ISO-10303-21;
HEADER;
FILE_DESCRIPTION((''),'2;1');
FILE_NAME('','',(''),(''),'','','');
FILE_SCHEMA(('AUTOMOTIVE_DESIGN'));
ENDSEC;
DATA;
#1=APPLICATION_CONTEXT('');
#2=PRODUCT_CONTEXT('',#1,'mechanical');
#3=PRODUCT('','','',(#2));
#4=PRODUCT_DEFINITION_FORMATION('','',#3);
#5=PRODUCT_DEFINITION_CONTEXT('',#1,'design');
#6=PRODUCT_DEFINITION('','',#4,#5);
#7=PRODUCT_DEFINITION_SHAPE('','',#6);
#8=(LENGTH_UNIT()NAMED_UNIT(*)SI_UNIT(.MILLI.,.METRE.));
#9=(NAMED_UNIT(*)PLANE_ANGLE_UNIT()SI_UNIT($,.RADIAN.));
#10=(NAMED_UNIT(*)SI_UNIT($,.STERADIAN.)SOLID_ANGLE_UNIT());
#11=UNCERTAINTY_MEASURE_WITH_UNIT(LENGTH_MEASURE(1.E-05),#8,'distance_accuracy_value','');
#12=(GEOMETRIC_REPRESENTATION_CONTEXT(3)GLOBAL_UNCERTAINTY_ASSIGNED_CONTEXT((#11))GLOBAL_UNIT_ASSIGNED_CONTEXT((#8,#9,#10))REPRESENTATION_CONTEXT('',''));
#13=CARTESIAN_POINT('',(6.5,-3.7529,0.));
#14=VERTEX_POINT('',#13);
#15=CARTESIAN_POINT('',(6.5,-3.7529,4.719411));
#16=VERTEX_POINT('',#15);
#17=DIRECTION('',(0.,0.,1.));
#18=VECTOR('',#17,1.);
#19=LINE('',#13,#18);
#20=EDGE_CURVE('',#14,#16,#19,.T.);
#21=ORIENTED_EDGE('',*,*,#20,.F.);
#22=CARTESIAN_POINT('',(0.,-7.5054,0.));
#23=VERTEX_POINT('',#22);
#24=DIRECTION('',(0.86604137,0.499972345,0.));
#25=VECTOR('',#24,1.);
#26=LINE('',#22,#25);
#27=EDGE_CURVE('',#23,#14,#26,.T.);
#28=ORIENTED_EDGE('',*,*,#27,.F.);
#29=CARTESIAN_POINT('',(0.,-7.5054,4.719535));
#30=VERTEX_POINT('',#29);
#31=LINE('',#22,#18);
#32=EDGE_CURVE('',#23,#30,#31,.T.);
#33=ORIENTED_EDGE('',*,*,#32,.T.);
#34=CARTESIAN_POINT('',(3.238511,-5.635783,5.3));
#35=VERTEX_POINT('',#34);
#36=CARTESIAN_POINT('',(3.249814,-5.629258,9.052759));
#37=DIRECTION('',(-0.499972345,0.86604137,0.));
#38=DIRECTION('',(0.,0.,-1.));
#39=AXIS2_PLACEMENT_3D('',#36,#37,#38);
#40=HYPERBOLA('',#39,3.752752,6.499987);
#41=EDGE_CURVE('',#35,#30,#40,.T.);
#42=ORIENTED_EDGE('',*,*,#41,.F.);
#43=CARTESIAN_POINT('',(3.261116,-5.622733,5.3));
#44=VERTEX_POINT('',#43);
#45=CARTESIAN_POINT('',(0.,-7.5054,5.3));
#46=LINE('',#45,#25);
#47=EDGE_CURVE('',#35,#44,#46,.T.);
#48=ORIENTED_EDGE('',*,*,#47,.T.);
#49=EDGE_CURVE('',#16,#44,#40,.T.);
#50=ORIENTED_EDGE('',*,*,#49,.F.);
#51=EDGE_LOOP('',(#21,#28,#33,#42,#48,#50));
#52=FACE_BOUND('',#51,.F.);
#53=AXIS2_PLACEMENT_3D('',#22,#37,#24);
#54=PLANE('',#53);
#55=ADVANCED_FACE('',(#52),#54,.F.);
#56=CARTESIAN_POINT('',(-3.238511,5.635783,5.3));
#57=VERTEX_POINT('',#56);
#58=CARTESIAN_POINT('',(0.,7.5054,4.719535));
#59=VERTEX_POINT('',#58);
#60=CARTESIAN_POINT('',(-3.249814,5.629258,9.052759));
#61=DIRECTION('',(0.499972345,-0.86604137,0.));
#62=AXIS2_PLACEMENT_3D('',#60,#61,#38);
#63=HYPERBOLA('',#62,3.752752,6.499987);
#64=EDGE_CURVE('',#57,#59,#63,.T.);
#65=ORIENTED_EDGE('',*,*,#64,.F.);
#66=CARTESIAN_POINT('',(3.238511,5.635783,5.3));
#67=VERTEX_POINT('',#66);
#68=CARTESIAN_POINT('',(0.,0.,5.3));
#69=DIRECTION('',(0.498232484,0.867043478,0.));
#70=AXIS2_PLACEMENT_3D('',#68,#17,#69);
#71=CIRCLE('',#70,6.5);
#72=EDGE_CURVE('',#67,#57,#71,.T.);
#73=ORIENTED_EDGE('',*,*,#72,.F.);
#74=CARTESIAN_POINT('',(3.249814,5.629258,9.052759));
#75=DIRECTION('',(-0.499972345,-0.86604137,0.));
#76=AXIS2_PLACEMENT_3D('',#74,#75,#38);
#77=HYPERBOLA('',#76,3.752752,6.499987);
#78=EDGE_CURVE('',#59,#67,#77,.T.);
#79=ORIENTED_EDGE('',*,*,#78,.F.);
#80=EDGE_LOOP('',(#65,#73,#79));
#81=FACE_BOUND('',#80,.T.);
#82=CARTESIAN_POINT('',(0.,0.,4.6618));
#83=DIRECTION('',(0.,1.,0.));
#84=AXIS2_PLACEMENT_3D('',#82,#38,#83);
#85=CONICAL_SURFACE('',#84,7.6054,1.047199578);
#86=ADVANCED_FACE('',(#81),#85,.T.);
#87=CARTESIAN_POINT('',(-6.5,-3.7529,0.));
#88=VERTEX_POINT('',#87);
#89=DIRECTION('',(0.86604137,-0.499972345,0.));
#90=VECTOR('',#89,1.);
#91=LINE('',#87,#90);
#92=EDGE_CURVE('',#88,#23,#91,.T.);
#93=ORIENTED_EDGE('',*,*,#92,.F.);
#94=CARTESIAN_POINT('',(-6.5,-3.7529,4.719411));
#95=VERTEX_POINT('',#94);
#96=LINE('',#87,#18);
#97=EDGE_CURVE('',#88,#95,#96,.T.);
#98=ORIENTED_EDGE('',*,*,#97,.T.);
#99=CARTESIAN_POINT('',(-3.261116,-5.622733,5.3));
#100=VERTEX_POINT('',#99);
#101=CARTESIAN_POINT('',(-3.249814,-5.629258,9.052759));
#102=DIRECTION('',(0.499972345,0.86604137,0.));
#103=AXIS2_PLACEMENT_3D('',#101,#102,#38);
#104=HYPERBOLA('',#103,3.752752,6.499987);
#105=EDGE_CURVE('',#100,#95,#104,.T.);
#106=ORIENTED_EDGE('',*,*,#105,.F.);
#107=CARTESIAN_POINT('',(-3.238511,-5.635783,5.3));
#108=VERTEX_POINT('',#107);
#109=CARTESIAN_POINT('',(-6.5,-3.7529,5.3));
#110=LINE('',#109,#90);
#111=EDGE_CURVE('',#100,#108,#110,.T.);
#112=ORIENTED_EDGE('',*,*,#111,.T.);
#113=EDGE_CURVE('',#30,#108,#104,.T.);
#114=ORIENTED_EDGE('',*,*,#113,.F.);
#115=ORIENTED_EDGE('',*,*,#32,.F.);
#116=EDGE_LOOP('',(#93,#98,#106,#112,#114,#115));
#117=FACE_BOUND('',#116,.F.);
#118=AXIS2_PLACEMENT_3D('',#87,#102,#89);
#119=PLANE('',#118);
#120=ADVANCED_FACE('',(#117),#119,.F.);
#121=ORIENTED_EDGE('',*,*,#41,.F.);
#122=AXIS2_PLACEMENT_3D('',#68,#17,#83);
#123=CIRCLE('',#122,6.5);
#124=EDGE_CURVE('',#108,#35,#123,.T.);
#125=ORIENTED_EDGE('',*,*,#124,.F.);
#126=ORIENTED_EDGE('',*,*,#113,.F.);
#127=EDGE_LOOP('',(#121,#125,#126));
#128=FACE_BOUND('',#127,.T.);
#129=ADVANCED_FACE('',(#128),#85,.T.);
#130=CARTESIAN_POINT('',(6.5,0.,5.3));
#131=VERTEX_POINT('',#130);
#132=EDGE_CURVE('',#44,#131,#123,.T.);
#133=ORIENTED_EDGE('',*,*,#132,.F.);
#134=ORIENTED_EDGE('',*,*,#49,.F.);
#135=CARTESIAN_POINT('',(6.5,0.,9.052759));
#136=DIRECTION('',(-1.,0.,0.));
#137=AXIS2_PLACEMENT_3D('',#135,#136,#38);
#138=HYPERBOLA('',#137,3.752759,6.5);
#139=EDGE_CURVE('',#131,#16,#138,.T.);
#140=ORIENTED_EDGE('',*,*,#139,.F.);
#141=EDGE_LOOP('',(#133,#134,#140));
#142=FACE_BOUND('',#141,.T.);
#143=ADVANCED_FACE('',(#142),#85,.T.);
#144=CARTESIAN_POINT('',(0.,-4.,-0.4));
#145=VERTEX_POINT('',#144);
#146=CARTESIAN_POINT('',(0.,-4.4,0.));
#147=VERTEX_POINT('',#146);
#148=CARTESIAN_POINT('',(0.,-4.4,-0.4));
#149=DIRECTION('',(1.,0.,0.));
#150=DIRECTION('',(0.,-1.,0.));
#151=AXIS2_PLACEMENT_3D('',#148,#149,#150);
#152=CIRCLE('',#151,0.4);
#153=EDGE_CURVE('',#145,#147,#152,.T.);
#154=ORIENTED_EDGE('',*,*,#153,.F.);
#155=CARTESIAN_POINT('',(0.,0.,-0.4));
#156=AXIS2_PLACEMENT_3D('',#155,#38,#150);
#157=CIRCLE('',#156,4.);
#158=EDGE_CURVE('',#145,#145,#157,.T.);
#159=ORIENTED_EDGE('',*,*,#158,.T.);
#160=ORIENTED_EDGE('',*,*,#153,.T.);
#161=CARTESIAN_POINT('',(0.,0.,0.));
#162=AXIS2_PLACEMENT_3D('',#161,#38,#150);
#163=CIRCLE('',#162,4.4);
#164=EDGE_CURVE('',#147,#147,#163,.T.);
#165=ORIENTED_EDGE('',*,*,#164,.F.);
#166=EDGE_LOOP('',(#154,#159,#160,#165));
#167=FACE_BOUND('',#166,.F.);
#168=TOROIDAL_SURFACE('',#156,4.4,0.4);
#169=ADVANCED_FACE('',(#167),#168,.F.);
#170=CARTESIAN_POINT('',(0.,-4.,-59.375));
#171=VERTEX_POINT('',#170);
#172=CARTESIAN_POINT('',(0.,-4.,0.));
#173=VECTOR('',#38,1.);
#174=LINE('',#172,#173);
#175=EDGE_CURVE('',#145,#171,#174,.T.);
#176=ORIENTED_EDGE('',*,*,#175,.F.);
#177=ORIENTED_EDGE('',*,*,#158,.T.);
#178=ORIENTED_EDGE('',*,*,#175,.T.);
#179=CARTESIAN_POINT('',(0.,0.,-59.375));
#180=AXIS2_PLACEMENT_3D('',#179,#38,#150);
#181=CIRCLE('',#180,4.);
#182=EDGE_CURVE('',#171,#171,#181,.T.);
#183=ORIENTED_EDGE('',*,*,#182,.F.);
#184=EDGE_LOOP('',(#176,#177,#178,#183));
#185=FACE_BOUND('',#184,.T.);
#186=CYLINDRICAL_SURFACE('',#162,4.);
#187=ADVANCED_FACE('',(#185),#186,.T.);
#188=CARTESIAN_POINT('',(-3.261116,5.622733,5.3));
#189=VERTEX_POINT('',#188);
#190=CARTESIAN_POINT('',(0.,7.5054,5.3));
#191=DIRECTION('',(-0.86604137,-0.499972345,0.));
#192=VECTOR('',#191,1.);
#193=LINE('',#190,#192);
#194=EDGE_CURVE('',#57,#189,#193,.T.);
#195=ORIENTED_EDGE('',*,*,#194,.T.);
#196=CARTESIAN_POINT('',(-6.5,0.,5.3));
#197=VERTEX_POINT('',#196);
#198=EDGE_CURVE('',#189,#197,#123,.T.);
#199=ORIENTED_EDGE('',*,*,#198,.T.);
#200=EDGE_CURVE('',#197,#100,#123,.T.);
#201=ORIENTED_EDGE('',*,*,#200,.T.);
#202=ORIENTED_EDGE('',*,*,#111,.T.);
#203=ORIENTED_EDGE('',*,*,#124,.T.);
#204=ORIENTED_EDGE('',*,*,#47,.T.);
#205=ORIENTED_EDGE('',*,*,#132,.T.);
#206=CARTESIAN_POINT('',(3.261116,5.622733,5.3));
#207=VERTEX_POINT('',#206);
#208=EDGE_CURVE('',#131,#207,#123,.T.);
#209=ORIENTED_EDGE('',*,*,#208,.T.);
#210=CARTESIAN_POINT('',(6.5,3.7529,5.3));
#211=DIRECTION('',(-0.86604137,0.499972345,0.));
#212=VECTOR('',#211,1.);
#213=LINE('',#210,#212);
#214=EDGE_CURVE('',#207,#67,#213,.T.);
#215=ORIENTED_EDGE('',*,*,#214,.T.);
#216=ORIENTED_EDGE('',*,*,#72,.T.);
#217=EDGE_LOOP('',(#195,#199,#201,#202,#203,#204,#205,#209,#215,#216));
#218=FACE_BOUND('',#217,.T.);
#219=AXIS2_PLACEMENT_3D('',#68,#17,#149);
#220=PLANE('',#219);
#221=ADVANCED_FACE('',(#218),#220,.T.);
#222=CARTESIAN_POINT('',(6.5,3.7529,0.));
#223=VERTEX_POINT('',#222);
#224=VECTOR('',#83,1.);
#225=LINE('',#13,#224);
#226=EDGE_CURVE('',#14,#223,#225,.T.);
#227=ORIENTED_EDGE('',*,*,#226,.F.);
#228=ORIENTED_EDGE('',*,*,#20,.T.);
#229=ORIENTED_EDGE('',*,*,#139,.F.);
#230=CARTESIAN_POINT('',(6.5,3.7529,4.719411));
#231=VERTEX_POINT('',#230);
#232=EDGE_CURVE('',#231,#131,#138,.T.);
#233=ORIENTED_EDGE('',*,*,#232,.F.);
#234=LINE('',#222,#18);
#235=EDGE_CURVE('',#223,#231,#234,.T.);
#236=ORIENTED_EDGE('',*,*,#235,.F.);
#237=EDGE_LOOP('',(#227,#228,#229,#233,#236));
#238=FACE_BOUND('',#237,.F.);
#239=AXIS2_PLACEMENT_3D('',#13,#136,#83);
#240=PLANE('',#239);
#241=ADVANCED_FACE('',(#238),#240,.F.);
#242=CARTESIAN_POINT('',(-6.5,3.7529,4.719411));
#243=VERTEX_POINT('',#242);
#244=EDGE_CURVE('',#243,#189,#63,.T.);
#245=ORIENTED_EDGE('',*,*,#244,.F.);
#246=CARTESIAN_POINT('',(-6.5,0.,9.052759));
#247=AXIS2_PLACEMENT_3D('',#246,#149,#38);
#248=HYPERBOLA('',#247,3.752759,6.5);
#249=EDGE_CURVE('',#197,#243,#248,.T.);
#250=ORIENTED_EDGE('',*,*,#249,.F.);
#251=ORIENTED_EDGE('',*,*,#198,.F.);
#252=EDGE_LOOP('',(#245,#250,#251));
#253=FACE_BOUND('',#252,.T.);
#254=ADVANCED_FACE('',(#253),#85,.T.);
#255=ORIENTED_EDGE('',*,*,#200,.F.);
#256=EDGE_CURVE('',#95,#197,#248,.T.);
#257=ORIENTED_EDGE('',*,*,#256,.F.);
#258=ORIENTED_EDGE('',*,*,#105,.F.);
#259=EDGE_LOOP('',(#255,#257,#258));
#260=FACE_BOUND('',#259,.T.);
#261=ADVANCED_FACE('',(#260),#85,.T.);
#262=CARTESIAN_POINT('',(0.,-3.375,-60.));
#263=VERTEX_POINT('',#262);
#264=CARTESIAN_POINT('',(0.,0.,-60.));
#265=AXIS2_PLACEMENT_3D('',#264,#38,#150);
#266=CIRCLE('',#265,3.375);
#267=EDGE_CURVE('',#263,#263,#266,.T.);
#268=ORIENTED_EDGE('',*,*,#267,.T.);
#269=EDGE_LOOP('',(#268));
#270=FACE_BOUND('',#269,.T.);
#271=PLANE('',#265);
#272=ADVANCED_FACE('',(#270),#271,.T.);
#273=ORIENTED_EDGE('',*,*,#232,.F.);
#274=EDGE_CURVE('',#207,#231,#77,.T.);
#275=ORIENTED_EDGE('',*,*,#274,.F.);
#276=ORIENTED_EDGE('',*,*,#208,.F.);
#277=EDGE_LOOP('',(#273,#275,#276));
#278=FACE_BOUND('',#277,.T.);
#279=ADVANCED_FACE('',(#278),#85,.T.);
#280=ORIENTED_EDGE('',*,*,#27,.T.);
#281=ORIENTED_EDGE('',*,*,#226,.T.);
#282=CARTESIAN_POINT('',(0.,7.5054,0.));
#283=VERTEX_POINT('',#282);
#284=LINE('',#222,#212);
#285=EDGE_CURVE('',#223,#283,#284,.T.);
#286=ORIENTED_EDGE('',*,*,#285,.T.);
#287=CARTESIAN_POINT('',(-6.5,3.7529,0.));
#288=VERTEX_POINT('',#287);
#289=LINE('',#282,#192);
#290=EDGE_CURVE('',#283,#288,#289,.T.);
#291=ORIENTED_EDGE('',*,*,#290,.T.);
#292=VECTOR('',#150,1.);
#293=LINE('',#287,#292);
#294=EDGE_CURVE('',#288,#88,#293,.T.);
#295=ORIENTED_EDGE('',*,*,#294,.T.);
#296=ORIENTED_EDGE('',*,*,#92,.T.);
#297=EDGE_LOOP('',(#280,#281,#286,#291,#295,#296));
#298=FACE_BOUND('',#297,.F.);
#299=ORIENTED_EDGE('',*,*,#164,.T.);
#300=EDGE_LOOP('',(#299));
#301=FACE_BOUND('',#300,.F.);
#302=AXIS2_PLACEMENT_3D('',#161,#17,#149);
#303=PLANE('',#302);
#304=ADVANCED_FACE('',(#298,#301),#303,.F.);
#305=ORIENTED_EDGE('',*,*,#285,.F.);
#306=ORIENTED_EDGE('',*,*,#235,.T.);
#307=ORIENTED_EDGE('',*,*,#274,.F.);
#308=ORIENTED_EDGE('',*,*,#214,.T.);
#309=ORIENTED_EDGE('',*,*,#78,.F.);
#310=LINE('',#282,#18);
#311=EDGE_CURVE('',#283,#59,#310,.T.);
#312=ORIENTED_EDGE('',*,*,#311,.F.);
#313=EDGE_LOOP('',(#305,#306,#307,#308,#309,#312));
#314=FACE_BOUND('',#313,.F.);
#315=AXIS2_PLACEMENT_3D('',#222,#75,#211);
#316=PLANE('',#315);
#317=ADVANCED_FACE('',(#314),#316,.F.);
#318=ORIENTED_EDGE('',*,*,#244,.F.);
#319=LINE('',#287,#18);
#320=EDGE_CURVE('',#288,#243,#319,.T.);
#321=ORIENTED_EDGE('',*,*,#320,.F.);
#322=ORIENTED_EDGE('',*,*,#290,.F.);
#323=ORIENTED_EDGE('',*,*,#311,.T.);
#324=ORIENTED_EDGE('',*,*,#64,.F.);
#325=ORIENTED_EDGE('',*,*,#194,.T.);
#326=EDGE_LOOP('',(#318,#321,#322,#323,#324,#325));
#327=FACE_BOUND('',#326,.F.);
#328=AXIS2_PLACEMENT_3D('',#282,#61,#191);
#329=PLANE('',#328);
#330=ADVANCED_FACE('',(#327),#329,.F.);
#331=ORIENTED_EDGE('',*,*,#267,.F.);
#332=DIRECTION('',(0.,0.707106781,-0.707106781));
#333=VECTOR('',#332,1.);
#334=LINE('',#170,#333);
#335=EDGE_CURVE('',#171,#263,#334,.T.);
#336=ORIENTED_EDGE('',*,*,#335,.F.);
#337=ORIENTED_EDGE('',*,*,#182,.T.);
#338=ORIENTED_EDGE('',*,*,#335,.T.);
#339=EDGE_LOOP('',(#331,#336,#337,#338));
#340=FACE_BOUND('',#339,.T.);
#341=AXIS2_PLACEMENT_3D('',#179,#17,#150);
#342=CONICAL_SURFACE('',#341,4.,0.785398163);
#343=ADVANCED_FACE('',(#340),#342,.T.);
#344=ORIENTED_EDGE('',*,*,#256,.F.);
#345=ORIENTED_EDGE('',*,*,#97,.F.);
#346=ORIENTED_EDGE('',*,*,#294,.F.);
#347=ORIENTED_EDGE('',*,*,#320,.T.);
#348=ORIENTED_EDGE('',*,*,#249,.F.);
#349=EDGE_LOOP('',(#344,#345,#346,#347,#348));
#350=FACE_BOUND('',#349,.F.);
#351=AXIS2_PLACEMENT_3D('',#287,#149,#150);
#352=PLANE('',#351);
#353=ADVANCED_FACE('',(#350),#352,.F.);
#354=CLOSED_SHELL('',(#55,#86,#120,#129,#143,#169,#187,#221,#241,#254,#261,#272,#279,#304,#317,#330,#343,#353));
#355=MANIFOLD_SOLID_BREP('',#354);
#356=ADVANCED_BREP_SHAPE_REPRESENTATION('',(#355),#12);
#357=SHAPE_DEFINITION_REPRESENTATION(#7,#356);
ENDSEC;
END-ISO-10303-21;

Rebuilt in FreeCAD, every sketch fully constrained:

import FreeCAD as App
import Part
import Sketcher
from FreeCAD import Vector
Q = App.Units.Quantity


def edges_at(feature, points):
    """Names of the edges that pass closest to the given points."""
    edges = feature.Shape.Edges
    near = lambda p: min(range(len(edges)), key=lambda i: edges[i].distToShape(Part.Vertex(*p))[0])
    return sorted({f"Edge{near(p) + 1}" for p in points})

doc = App.newDocument("Part")
body = doc.addObject("PartDesign::Body", "Body")

# Sketch on XY plane
sketch1 = doc.addObject("Sketcher::SketchObject", "Sketch")
body.addObject(sketch1)
sketch1.AttachmentSupport = (doc.XY_Plane, [""])
sketch1.MapMode = "FlatFace"
sketch1.addGeometry([
    Part.LineSegment(Vector(0, 8, 0), Vector(-6, 4, 0)),  # 0
    Part.LineSegment(Vector(-6, 4, 0), Vector(-6, -4, 0)),  # 1
    Part.LineSegment(Vector(-6, -4, 0), Vector(0, -8, 0)),  # 2
    Part.LineSegment(Vector(0, -8, 0), Vector(6, -4, 0)),  # 3
    Part.LineSegment(Vector(6, -4, 0), Vector(6, 4, 0)),  # 4
    Part.LineSegment(Vector(6, 4, 0), Vector(0, 8, 0)),  # 5
], False)
sketch1.addConstraint([
    Sketcher.Constraint("Coincident", 0, 2, 1, 1),
    Sketcher.Constraint("Coincident", 1, 2, 2, 1),
    Sketcher.Constraint("Coincident", 2, 2, 3, 1),
    Sketcher.Constraint("Coincident", 3, 2, 4, 1),
    Sketcher.Constraint("Coincident", 4, 2, 5, 1),
    Sketcher.Constraint("Coincident", 5, 2, 0, 1),
    Sketcher.Constraint("Vertical", 1),
    Sketcher.Constraint("Vertical", 4),
    Sketcher.Constraint("Symmetric", 0, 2, 3, 2, -1, 1),
    Sketcher.Constraint("Symmetric", 2, 2, 5, 2, -1, 1),
    Sketcher.Constraint("PointOnObject", 2, 2, -2),
    Sketcher.Constraint("Parallel", 2, 5),
    Sketcher.Constraint("Horizontal", 1, 2, 3, 2),
    Sketcher.Constraint("DistanceX", 1, 2, 3, 2, Q("13 mm")),
    Sketcher.Constraint("DistanceY", 1, 2, 1, 1, Q("7.5058 mm")),
    Sketcher.Constraint("Distance", 0, Q("7.5054 mm")),
])
pad1 = doc.addObject("PartDesign::Pad", "Pad")
body.addObject(pad1)
pad1.Profile = sketch1
pad1.Length = 5.3

# Sketch on YZ plane
sketch2 = doc.addObject("Sketcher::SketchObject", "Sketch001")
body.addObject(sketch2)
sketch2.AttachmentSupport = (doc.YZ_Plane, [""])
sketch2.MapMode = "FlatFace"
sketch2.addGeometry([
    Part.LineSegment(Vector(6.5, 5.3, 0), Vector(7.6, 4.7, 0)),
    Part.LineSegment(Vector(7.6, 4.7, 0), Vector(7.6, 5.3, 0)),
    Part.LineSegment(Vector(7.6, 5.3, 0), Vector(6.5, 5.3, 0)),
], False)
sketch2.addConstraint([
    Sketcher.Constraint("Coincident", 0, 2, 1, 1),
    Sketcher.Constraint("Coincident", 1, 2, 2, 1),
    Sketcher.Constraint("Coincident", 2, 2, 0, 1),
    Sketcher.Constraint("Vertical", 1),
    Sketcher.Constraint("Horizontal", 2),
    Sketcher.Constraint("DistanceX", -1, 1, 2, 2, Q("6.5 mm")),
    Sketcher.Constraint("Angle", 0, Q("-30 deg")),
    Sketcher.Constraint("DistanceY", -1, 1, 1, 2, Q("5.3 mm")),
    Sketcher.Constraint("DistanceX", 2, 2, 2, 1, Q("1.1054 mm")),
])
groove = doc.addObject("PartDesign::Groove", "Groove")
body.addObject(groove)
groove.Profile = sketch2
groove.ReferenceAxis = (sketch2, ["V_Axis"])
groove.Angle = 360

# Sketch on YZ plane
sketch3 = doc.addObject("Sketcher::SketchObject", "Sketch002")
body.addObject(sketch3)
sketch3.AttachmentSupport = (doc.YZ_Plane, [""])
sketch3.MapMode = "FlatFace"
sketch3.addGeometry([
    Part.LineSegment(Vector(-4, -60, 0), Vector(0, -60, 0)),
    Part.LineSegment(Vector(0, -60, 0), Vector(0, 0, 0)),
    Part.LineSegment(Vector(0, 0, 0), Vector(-4, 0, 0)),
    Part.LineSegment(Vector(-4, 0, 0), Vector(-4, -60, 0)),
], False)
sketch3.addConstraint([
    Sketcher.Constraint("Coincident", 0, 2, 1, 1),
    Sketcher.Constraint("Coincident", 1, 2, 2, 1),
    Sketcher.Constraint("Coincident", 2, 2, 3, 1),
    Sketcher.Constraint("Coincident", 3, 2, 0, 1),
    Sketcher.Constraint("Horizontal", 0),
    Sketcher.Constraint("Vertical", 1),
    Sketcher.Constraint("Horizontal", 2),
    Sketcher.Constraint("Vertical", 3),
    Sketcher.Constraint("Coincident", 1, 2, -1, 1),
    Sketcher.Constraint("DistanceX", 0, 1, 0, 2, Q("4 mm")),
    Sketcher.Constraint("DistanceY", 1, 1, 1, 2, Q("60 mm")),
])
revolution = doc.addObject("PartDesign::Revolution", "Revolution")
body.addObject(revolution)
revolution.Profile = sketch3
revolution.ReferenceAxis = (sketch3, ["V_Axis"])
revolution.Angle = 360
doc.recompute()

chamfer = doc.addObject("PartDesign::Chamfer", "Chamfer")
body.addObject(chamfer)
chamfer.Base = (revolution, edges_at(revolution, [(0, 4, -60)]))
chamfer.Size = 0.625
doc.recompute()

fillet = doc.addObject("PartDesign::Fillet", "Fillet")
body.addObject(fillet)
fillet.Base = (chamfer, edges_at(chamfer, [(0, 4, 0)]))
fillet.Radius = 0.4

doc.recompute()
